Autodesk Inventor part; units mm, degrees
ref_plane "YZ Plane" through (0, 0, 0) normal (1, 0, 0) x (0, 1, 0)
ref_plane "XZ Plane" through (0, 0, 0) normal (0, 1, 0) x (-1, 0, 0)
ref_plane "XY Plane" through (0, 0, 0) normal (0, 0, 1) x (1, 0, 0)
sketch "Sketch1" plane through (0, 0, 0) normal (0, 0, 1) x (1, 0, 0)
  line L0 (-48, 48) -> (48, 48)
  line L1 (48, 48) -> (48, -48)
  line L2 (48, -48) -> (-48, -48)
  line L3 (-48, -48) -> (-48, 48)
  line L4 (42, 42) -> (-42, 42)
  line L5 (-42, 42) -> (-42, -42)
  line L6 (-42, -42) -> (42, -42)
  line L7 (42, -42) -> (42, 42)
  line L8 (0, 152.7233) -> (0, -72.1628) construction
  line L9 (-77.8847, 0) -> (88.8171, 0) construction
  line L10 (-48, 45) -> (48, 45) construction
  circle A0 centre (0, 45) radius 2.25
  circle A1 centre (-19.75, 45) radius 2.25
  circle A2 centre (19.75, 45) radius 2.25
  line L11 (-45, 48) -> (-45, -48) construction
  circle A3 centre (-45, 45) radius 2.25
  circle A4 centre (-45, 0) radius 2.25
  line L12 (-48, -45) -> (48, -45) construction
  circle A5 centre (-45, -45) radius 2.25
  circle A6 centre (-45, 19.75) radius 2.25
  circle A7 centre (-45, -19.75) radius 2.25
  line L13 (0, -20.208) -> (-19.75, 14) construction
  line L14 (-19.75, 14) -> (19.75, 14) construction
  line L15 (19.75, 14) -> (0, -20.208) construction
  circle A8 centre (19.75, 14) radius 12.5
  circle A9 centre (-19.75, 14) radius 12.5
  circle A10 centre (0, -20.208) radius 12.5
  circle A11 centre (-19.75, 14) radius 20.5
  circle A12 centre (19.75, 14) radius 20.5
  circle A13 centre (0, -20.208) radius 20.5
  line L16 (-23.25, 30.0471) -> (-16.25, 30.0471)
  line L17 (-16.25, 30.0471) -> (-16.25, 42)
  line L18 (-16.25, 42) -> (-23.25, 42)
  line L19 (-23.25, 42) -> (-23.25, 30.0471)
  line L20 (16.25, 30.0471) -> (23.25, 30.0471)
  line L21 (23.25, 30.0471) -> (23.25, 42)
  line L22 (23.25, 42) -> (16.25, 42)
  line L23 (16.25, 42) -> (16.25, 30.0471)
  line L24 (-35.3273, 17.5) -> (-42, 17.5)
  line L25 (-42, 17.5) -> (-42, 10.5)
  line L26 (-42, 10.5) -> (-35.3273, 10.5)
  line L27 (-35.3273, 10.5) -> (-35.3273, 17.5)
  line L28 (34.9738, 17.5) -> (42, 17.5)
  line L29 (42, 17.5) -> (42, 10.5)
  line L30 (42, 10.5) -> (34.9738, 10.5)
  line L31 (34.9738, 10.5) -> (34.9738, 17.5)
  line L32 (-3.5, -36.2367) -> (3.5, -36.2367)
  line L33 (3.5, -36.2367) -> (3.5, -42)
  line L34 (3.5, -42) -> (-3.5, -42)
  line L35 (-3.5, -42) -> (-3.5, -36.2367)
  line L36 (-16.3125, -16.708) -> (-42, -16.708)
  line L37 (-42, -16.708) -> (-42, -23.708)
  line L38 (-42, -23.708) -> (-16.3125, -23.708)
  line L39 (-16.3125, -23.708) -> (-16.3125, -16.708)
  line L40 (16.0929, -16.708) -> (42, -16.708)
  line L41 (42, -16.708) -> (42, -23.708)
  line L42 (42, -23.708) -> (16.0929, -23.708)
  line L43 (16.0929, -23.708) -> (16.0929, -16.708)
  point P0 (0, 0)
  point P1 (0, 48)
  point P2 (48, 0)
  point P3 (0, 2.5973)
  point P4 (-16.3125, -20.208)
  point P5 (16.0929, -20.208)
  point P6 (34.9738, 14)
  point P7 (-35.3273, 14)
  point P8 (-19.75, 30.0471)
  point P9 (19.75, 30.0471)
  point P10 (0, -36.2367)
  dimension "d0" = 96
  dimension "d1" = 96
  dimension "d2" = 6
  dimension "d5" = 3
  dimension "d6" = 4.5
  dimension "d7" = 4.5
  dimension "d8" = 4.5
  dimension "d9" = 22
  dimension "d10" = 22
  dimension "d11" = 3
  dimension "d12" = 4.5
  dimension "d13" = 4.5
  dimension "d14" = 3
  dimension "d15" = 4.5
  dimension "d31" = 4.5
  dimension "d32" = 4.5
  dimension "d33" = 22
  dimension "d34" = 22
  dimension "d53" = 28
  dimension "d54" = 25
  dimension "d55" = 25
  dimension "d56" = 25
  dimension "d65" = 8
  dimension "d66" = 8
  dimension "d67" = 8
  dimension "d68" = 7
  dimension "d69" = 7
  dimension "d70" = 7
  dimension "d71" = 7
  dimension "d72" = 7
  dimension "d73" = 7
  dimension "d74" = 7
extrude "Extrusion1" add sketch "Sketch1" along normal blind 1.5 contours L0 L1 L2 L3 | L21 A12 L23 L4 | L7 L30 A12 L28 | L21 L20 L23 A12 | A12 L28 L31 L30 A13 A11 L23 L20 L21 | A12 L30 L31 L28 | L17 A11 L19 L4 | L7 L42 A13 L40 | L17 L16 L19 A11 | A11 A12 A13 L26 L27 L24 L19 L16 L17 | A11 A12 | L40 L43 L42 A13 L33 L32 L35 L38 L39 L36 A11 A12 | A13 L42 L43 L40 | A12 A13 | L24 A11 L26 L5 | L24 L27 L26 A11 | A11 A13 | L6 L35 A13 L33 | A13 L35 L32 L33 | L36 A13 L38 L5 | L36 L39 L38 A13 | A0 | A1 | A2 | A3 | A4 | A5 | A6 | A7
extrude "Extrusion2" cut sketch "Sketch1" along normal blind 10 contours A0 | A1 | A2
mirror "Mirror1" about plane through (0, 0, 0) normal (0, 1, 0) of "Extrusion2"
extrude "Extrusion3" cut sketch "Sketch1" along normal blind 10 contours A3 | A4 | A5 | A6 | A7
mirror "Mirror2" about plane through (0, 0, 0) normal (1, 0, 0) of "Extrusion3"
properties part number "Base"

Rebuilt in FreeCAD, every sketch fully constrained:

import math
import FreeCAD as App
import Part
import Sketcher

V = App.Vector

doc = App.newDocument("Part")
params = doc.addObject("Spreadsheet::Sheet", "Params")
for row, (alias, value) in enumerate([
    ("sketch1_diameter", "25 mm"),
    ("sketch1_width", "96 mm"),
    ("sketch1_radius", "20.5 mm"),
    ("sketch1_width2", "32.5 mm"),
    ("pad1_length", "1.5 mm"),
    ("sketch2_diameter", "4.5 mm"),
    ("pocket1_length", "10 mm"),
    ("sketch3_diameter", "4.5 mm"),
    ("pocket2_length", "10 mm"),
], start=1):
    params.set(f"A{row}", alias)
    params.set(f"B{row}", "=" + value)
    params.setAlias(f"B{row}", alias)

body = doc.addObject("PartDesign::Body", "Body")

# Sketch on XY plane
sketch1 = body.newObject("Sketcher::SketchObject", "Sketch")
sketch1.AttachmentSupport = (doc.getObject("XY_Plane"), [""])
sketch1.MapMode = "FlatFace"
sketch1.addGeometry(Part.LineSegment(V(48, 48, 0), V(-48, 48, 0)), False)
sketch1.addGeometry(Part.LineSegment(V(-48, 48, 0), V(-48, -48, 0)), False)
sketch1.addGeometry(Part.LineSegment(V(-48, -48, 0), V(48, -48, 0)), False)
sketch1.addGeometry(Part.LineSegment(V(48, -48, 0), V(48, 48, 0)), False)
sketch1.addGeometry(Part.LineSegment(V(23.25, 42, 0), V(42, 42, 0)), False)
sketch1.addGeometry(Part.LineSegment(V(42, 42, 0), V(42, 17.5, 0)), False)
sketch1.addGeometry(Part.LineSegment(V(42, 17.5, 0), V(39.94901, 17.5, 0)), False)
sketch1.addGeometry(Part.ArcOfCircle(Part.Circle(V(19.75, 14, 0), V(0, 0, 1), 20.5), math.radians(9.830365), math.radians(80.169635)), False)
sketch1.addGeometry(Part.LineSegment(V(23.25, 34.19901, 0), V(23.25, 42, 0)), False)
sketch1.addGeometry(Part.LineSegment(V(-16.25, 42, 0), V(16.25, 42, 0)), False)
sketch1.addGeometry(Part.LineSegment(V(16.25, 42, 0), V(16.25, 34.19901, 0)), False)
sketch1.addGeometry(Part.ArcOfCircle(Part.Circle(V(19.75, 14, 0), V(0, 0, 1), 20.5), math.radians(99.830365), math.radians(164.453796)), False)
sketch1.addGeometry(Part.ArcOfCircle(Part.Circle(V(-19.75, 14, 0), V(0, 0, 1), 20.5), math.radians(15.546204), math.radians(80.169635)), False)
sketch1.addGeometry(Part.LineSegment(V(-16.25, 34.19901, 0), V(-16.25, 42, 0)), False)
sketch1.addGeometry(Part.LineSegment(V(-42, 42, 0), V(-23.25, 42, 0)), False)
sketch1.addGeometry(Part.LineSegment(V(-23.25, 42, 0), V(-23.25, 34.19901, 0)), False)
sketch1.addGeometry(Part.ArcOfCircle(Part.Circle(V(-19.75, 14, 0), V(0, 0, 1), 20.5), math.radians(99.830365), math.radians(170.169635)), False)
sketch1.addGeometry(Part.LineSegment(V(-39.94901, 17.5, 0), V(-42, 17.5, 0)), False)
sketch1.addGeometry(Part.LineSegment(V(-42, 17.5, 0), V(-42, 42, 0)), False)
sketch1.addGeometry(Part.LineSegment(V(-42, -16.708, 0), V(-42, 10.5, 0)), False)
sketch1.addGeometry(Part.LineSegment(V(-42, 10.5, 0), V(-39.94901, 10.5, 0)), False)
sketch1.addGeometry(Part.ArcOfCircle(Part.Circle(V(-19.75, 14, 0), V(0, 0, 1), 20.5), math.radians(-170.169635), math.radians(-75.546217)), False)
sketch1.addGeometry(Part.ArcOfCircle(Part.Circle(V(0, -20.208, 0), V(0, 0, 1), 20.5), math.radians(135.546222), math.radians(170.169635)), False)
sketch1.addGeometry(Part.LineSegment(V(-20.19901, -16.708, 0), V(-42, -16.708, 0)), False)
sketch1.addGeometry(Part.LineSegment(V(-42, -42, 0), V(-42, -23.708, 0)), False)
sketch1.addGeometry(Part.LineSegment(V(-42, -23.708, 0), V(-20.19901, -23.708, 0)), False)
sketch1.addGeometry(Part.ArcOfCircle(Part.Circle(V(0, -20.208, 0), V(0, 0, 1), 20.5), math.radians(-170.169635), math.radians(-99.830365)), False)
sketch1.addGeometry(Part.LineSegment(V(-3.5, -40.40701, 0), V(-3.5, -42, 0)), False)
sketch1.addGeometry(Part.LineSegment(V(-3.5, -42, 0), V(-42, -42, 0)), False)
sketch1.addGeometry(Part.LineSegment(V(42, -42, 0), V(3.5, -42, 0)), False)
sketch1.addGeometry(Part.LineSegment(V(3.5, -42, 0), V(3.5, -40.40701, 0)), False)
sketch1.addGeometry(Part.ArcOfCircle(Part.Circle(V(0, -20.208, 0), V(0, 0, 1), 20.5), math.radians(-80.169635), math.radians(-9.830365)), False)
sketch1.addGeometry(Part.LineSegment(V(20.19901, -23.708, 0), V(42, -23.708, 0)), False)
sketch1.addGeometry(Part.LineSegment(V(42, -23.708, 0), V(42, -42, 0)), False)
sketch1.addGeometry(Part.LineSegment(V(42, 10.5, 0), V(42, -16.708, 0)), False)
sketch1.addGeometry(Part.LineSegment(V(42, -16.708, 0), V(20.19901, -16.708, 0)), False)
sketch1.addGeometry(Part.ArcOfCircle(Part.Circle(V(0, -20.208, 0), V(0, 0, 1), 20.5), math.radians(9.830365), math.radians(44.453778)), False)
sketch1.addGeometry(Part.ArcOfCircle(Part.Circle(V(19.75, 14, 0), V(0, 0, 1), 20.5), math.radians(-104.453783), math.radians(-9.830365)), False)
sketch1.addGeometry(Part.LineSegment(V(39.94901, 10.5, 0), V(42, 10.5, 0)), False)
sketch1.addGeometry(Part.Circle(V(19.75, 14, 0), V(0, 0, 1), 12.5), False)
sketch1.addGeometry(Part.ArcOfCircle(Part.Circle(V(19.75, 14, 0), V(0, 0, 1), 20.5), math.radians(-164.453796), math.radians(-135.546222)), False)
sketch1.addGeometry(Part.ArcOfCircle(Part.Circle(V(0, -20.208, 0), V(0, 0, 1), 20.5), math.radians(75.546217), math.radians(104.453783)), False)
sketch1.addGeometry(Part.ArcOfCircle(Part.Circle(V(-19.75, 14, 0), V(0, 0, 1), 20.5), math.radians(-44.453778), math.radians(-15.546204)), False)
sketch1.addGeometry(Part.Circle(V(-19.75, 14, 0), V(0, 0, 1), 12.5), False)
sketch1.addGeometry(Part.Circle(V(0, -20.208, 0), V(0, 0, 1), 12.5), False)
sketch1.addConstraint(Sketcher.Constraint("Coincident", 0, 2, 1, 1))
sketch1.addConstraint(Sketcher.Constraint("Coincident", 1, 2, 2, 1))
sketch1.addConstraint(Sketcher.Constraint("Coincident", 2, 2, 3, 1))
sketch1.addConstraint(Sketcher.Constraint("Coincident", 3, 2, 0, 1))
sketch1.addConstraint(Sketcher.Constraint("Coincident", 4, 2, 5, 1))
sketch1.addConstraint(Sketcher.Constraint("Coincident", 5, 2, 6, 1))
sketch1.addConstraint(Sketcher.Constraint("Coincident", 6, 2, 7, 1))
sketch1.addConstraint(Sketcher.Constraint("Coincident", 7, 2, 8, 1))
sketch1.addConstraint(Sketcher.Constraint("Coincident", 8, 2, 4, 1))
sketch1.addConstraint(Sketcher.Constraint("Coincident", 9, 2, 10, 1))
sketch1.addConstraint(Sketcher.Constraint("Coincident", 10, 2, 11, 1))
sketch1.addConstraint(Sketcher.Constraint("Coincident", 11, 2, 12, 1))
sketch1.addConstraint(Sketcher.Constraint("Coincident", 12, 2, 13, 1))
sketch1.addConstraint(Sketcher.Constraint("Coincident", 13, 2, 9, 1))
sketch1.addConstraint(Sketcher.Constraint("Coincident", 14, 2, 15, 1))
sketch1.addConstraint(Sketcher.Constraint("Coincident", 15, 2, 16, 1))
sketch1.addConstraint(Sketcher.Constraint("Coincident", 16, 2, 17, 1))
sketch1.addConstraint(Sketcher.Constraint("Coincident", 17, 2, 18, 1))
sketch1.addConstraint(Sketcher.Constraint("Coincident", 18, 2, 14, 1))
sketch1.addConstraint(Sketcher.Constraint("Coincident", 19, 2, 20, 1))
sketch1.addConstraint(Sketcher.Constraint("Coincident", 20, 2, 21, 1))
sketch1.addConstraint(Sketcher.Constraint("Coincident", 21, 2, 22, 1))
sketch1.addConstraint(Sketcher.Constraint("Coincident", 22, 2, 23, 1))
sketch1.addConstraint(Sketcher.Constraint("Coincident", 23, 2, 19, 1))
sketch1.addConstraint(Sketcher.Constraint("Coincident", 24, 2, 25, 1))
sketch1.addConstraint(Sketcher.Constraint("Coincident", 25, 2, 26, 1))
sketch1.addConstraint(Sketcher.Constraint("Coincident", 26, 2, 27, 1))
sketch1.addConstraint(Sketcher.Constraint("Coincident", 27, 2, 28, 1))
sketch1.addConstraint(Sketcher.Constraint("Coincident", 28, 2, 24, 1))
sketch1.addConstraint(Sketcher.Constraint("Coincident", 29, 2, 30, 1))
sketch1.addConstraint(Sketcher.Constraint("Coincident", 30, 2, 31, 1))
sketch1.addConstraint(Sketcher.Constraint("Coincident", 31, 2, 32, 1))
sketch1.addConstraint(Sketcher.Constraint("Coincident", 32, 2, 33, 1))
sketch1.addConstraint(Sketcher.Constraint("Coincident", 33, 2, 29, 1))
sketch1.addConstraint(Sketcher.Constraint("Coincident", 34, 2, 35, 1))
sketch1.addConstraint(Sketcher.Constraint("Coincident", 35, 2, 36, 1))
sketch1.addConstraint(Sketcher.Constraint("Coincident", 36, 2, 37, 1))
sketch1.addConstraint(Sketcher.Constraint("Coincident", 37, 2, 38, 1))
sketch1.addConstraint(Sketcher.Constraint("Coincident", 38, 2, 34, 1))
sketch1.addConstraint(Sketcher.Constraint("Coincident", 40, 2, 41, 1))
sketch1.addConstraint(Sketcher.Constraint("Coincident", 41, 2, 42, 1))
sketch1.addConstraint(Sketcher.Constraint("Coincident", 42, 2, 40, 1))
sketch1.addConstraint(Sketcher.Constraint("Horizontal", 0))
sketch1.addConstraint(Sketcher.Constraint("Vertical", 1))
sketch1.addConstraint(Sketcher.Constraint("Horizontal", 2))
sketch1.addConstraint(Sketcher.Constraint("Vertical", 3))
sketch1.addConstraint(Sketcher.Constraint("Horizontal", 4))
sketch1.addConstraint(Sketcher.Constraint("Vertical", 5))
sketch1.addConstraint(Sketcher.Constraint("Horizontal", 6))
sketch1.addConstraint(Sketcher.Constraint("Vertical", 8))
sketch1.addConstraint(Sketcher.Constraint("Horizontal", 9))
sketch1.addConstraint(Sketcher.Constraint("Vertical", 10))
sketch1.addConstraint(Sketcher.Constraint("Vertical", 13))
sketch1.addConstraint(Sketcher.Constraint("Horizontal", 14))
sketch1.addConstraint(Sketcher.Constraint("Vertical", 15))
sketch1.addConstraint(Sketcher.Constraint("Horizontal", 17))
sketch1.addConstraint(Sketcher.Constraint("Vertical", 18))
sketch1.addConstraint(Sketcher.Constraint("Vertical", 19))
sketch1.addConstraint(Sketcher.Constraint("Horizontal", 20))
sketch1.addConstraint(Sketcher.Constraint("Horizontal", 23))
sketch1.addConstraint(Sketcher.Constraint("Vertical", 24))
sketch1.addConstraint(Sketcher.Constraint("Horizontal", 25))
sketch1.addConstraint(Sketcher.Constraint("Vertical", 27))
sketch1.addConstraint(Sketcher.Constraint("Horizontal", 28))
sketch1.addConstraint(Sketcher.Constraint("Horizontal", 29))
sketch1.addConstraint(Sketcher.Constraint("Vertical", 30))
sketch1.addConstraint(Sketcher.Constraint("Horizontal", 32))
sketch1.addConstraint(Sketcher.Constraint("Vertical", 33))
sketch1.addConstraint(Sketcher.Constraint("Vertical", 34))
sketch1.addConstraint(Sketcher.Constraint("Horizontal", 35))
sketch1.addConstraint(Sketcher.Constraint("Horizontal", 38))
sketch1.addConstraint(Sketcher.Constraint("Coincident", 11, 3, 7, 3))
sketch1.addConstraint(Sketcher.Constraint("Coincident", 16, 3, 12, 3))
sketch1.addConstraint(Sketcher.Constraint("Coincident", 21, 3, 12, 3))
sketch1.addConstraint(Sketcher.Constraint("Coincident", 26, 3, 22, 3))
sketch1.addConstraint(Sketcher.Constraint("Coincident", 31, 3, 22, 3))
sketch1.addConstraint(Sketcher.Constraint("Coincident", 36, 3, 22, 3))
sketch1.addConstraint(Sketcher.Constraint("Coincident", 37, 3, 7, 3))
sketch1.addConstraint(Sketcher.Constraint("Coincident", 39, 3, 7, 3))
sketch1.addConstraint(Sketcher.Constraint("Coincident", 40, 3, 7, 3))
sketch1.addConstraint(Sketcher.Constraint("Coincident", 41, 3, 22, 3))
sketch1.addConstraint(Sketcher.Constraint("Coincident", 42, 3, 12, 3))
sketch1.addConstraint(Sketcher.Constraint("Coincident", 43, 3, 12, 3))
sketch1.addConstraint(Sketcher.Constraint("Coincident", 44, 3, 22, 3))
sketch1.addConstraint(Sketcher.Constraint("Equal", 7, 11))
sketch1.addConstraint(Sketcher.Constraint("Equal", 11, 12))
sketch1.addConstraint(Sketcher.Constraint("Equal", 12, 16))
sketch1.addConstraint(Sketcher.Constraint("Equal", 16, 21))
sketch1.addConstraint(Sketcher.Constraint("Equal", 21, 22))
sketch1.addConstraint(Sketcher.Constraint("Equal", 22, 26))
sketch1.addConstraint(Sketcher.Constraint("Equal", 26, 31))
sketch1.addConstraint(Sketcher.Constraint("Equal", 31, 36))
sketch1.addConstraint(Sketcher.Constraint("Equal", 36, 37))
sketch1.addConstraint(Sketcher.Constraint("Equal", 37, 40))
sketch1.addConstraint(Sketcher.Constraint("Equal", 40, 41))
sketch1.addConstraint(Sketcher.Constraint("Equal", 41, 42))
sketch1.addConstraint(Sketcher.Constraint("Equal", 39, 43))
sketch1.addConstraint(Sketcher.Constraint("Equal", 43, 44))
sketch1.addConstraint(Sketcher.Constraint("Symmetric", 0, 2, 2, 2, -1, 1))
sketch1.addConstraint(Sketcher.Constraint("Symmetric", 4, 2, 28, 2, -1, 1))
sketch1.addConstraint(Sketcher.Constraint("Symmetric", 18, 2, 33, 2, -1, 1))
sketch1.addConstraint(Sketcher.Constraint("Symmetric", 7, 3, 12, 3, -2))
sketch1.addConstraint(Sketcher.Constraint("Symmetric", 8, 2, 14, 2, -2))
sketch1.addConstraint(Sketcher.Constraint("Symmetric", 5, 2, 17, 2, -2))
sketch1.addConstraint(Sketcher.Constraint("Symmetric", 26, 2, 30, 2, -2))
sketch1.addConstraint(Sketcher.Constraint("Symmetric", 23, 2, 34, 2, -2))
sketch1.addConstraint(Sketcher.Constraint("Horizontal", 8, 2, 9, 2))
sketch1.addConstraint(Sketcher.Constraint("Horizontal", 7, 2, 10, 2))
sketch1.addConstraint(Sketcher.Constraint("Horizontal", 10, 2, 12, 2))
sketch1.addConstraint(Sketcher.Constraint("Horizontal", 25, 2, 31, 2))
sketch1.addConstraint(Sketcher.Constraint("Horizontal", 20, 2, 37, 2))
sketch1.addConstraint(Sketcher.Constraint("Vertical", 18, 2, 19, 2))
sketch1.addConstraint(Sketcher.Constraint("Vertical", 16, 2, 20, 2))
sketch1.addConstraint(Sketcher.Constraint("Vertical", 22, 2, 25, 2))
sketch1.addConstraint(Sketcher.Constraint("Equal", 2, 1))
sketch1.addConstraint(Sketcher.Constraint("Diameter", 39, 25.0))
sketch1.addConstraint(Sketcher.Constraint("DistanceX", 0, 2, 0, 1, 96.0))
sketch1.addConstraint(Sketcher.Constraint("DistanceX", 4, 2, 3, 2, 6.0))
sketch1.addConstraint(Sketcher.Constraint("DistanceY", 4, 2, 3, 2, 6.0))
sketch1.addConstraint(Sketcher.Constraint("DistanceY", 7, 3, 4, 2, 28.0))
sketch1.addConstraint(Sketcher.Constraint("DistanceX", 9, 2, 8, 2, 7.0))
sketch1.addConstraint(Sketcher.Constraint("DistanceY", 19, 2, 17, 2, 7.0))
sketch1.addConstraint(Sketcher.Constraint("DistanceY", 24, 2, 23, 2, 7.0))
sketch1.addConstraint(Sketcher.Constraint("DistanceX", 27, 2, 29, 2, 7.0))
sketch1.addConstraint(Sketcher.Constraint("Radius", 7, 20.5))
sketch1.addConstraint(Sketcher.Constraint("DistanceX", 9, 1, 9, 2, 32.5))
sketch1.addConstraint(Sketcher.Constraint("DistanceY", 19, 1, 19, 2, 27.208))
sketch1.setExpression("Constraints[115]", "Params.sketch1_diameter")
sketch1.setExpression("Constraints[116]", "Params.sketch1_width")
sketch1.setExpression("Constraints[124]", "Params.sketch1_radius")
sketch1.setExpression("Constraints[125]", "Params.sketch1_width2")
pad1 = body.newObject("PartDesign::Pad", "Pad")
pad1.Profile = sketch1
pad1.setExpression("Length", "Params.pad1_length")

# Sketch on XY plane
sketch2 = body.newObject("Sketcher::SketchObject", "Sketch001")
sketch2.AttachmentSupport = (doc.getObject("XY_Plane"), [""])
sketch2.MapMode = "FlatFace"
sketch2.addGeometry(Part.Circle(V(0, 45, 0), V(0, 0, 1), 2.25), False)
sketch2.addGeometry(Part.Circle(V(-19.75, 45, 0), V(0, 0, 1), 2.25), False)
sketch2.addGeometry(Part.Circle(V(19.75, 45, 0), V(0, 0, 1), 2.25), False)
sketch2.addConstraint(Sketcher.Constraint("Equal", 0, 1))
sketch2.addConstraint(Sketcher.Constraint("Equal", 1, 2))
sketch2.addConstraint(Sketcher.Constraint("Symmetric", 1, 3, 2, 3, -2))
sketch2.addConstraint(Sketcher.Constraint("PointOnObject", 0, 3, -2))
sketch2.addConstraint(Sketcher.Constraint("Horizontal", 0, 3, 1, 3))
sketch2.addConstraint(Sketcher.Constraint("Diameter", 0, 4.5))
sketch2.addConstraint(Sketcher.Constraint("DistanceY", -1, 1, 0, 3, 45.0))
sketch2.addConstraint(Sketcher.Constraint("DistanceX", 1, 3, 2, 3, 39.5))
sketch2.setExpression("Constraints[5]", "Params.sketch2_diameter")
pocket1 = body.newObject("PartDesign::Pocket", "Pocket")
pocket1.Profile = sketch2
pocket1.setExpression("Length", "Params.pocket1_length")
pocket1.Reversed = True
doc.recompute()

mirrored = body.newObject("PartDesign::Mirrored", "Mirrored")
mirrored.Originals = [pocket1]
mirrored.MirrorPlane = (doc.getObject("XZ_Plane"), [""])
body.Tip = mirrored

# Sketch on XY plane
sketch3 = body.newObject("Sketcher::SketchObject", "Sketch002")
sketch3.AttachmentSupport = (doc.getObject("XY_Plane"), [""])
sketch3.MapMode = "FlatFace"
sketch3.addGeometry(Part.Circle(V(-45, 45, 0), V(0, 0, 1), 2.25), False)
sketch3.addGeometry(Part.Circle(V(-45, 0, 0), V(0, 0, 1), 2.25), False)
sketch3.addGeometry(Part.Circle(V(-45, -45, 0), V(0, 0, 1), 2.25), False)
sketch3.addGeometry(Part.Circle(V(-45, 19.75, 0), V(0, 0, 1), 2.25), False)
sketch3.addGeometry(Part.Circle(V(-45, -19.75, 0), V(0, 0, 1), 2.25), False)
sketch3.addConstraint(Sketcher.Constraint("Equal", 0, 1))
sketch3.addConstraint(Sketcher.Constraint("Equal", 1, 2))
sketch3.addConstraint(Sketcher.Constraint("Equal", 2, 3))
sketch3.addConstraint(Sketcher.Constraint("Equal", 3, 4))
sketch3.addConstraint(Sketcher.Constraint("Symmetric", 0, 3, 2, 3, -1))
sketch3.addConstraint(Sketcher.Constraint("Symmetric", 3, 3, 4, 3, -1))
sketch3.addConstraint(Sketcher.Constraint("PointOnObject", 1, 3, -1))
sketch3.addConstraint(Sketcher.Constraint("Vertical", 0, 3, 1, 3))
sketch3.addConstraint(Sketcher.Constraint("Vertical", 2, 3, 3, 3))
sketch3.addConstraint(Sketcher.Constraint("Diameter", 0, 4.5))
sketch3.addConstraint(Sketcher.Constraint("DistanceX", 0, 3, -1, 1, 45.0))
sketch3.addConstraint(Sketcher.Constraint("DistanceY", -1, 1, 0, 3, 45.0))
sketch3.addConstraint(Sketcher.Constraint("DistanceY", 4, 3, 3, 3, 39.5))
sketch3.setExpression("Constraints[9]", "Params.sketch3_diameter")
pocket2 = body.newObject("PartDesign::Pocket", "Pocket001")
pocket2.Profile = sketch3
pocket2.setExpression("Length", "Params.pocket2_length")
pocket2.Reversed = True
doc.recompute()

mirrored2 = body.newObject("PartDesign::Mirrored", "Mirrored001")
mirrored2.Originals = [pocket2]
mirrored2.MirrorPlane = (doc.getObject("YZ_Plane"), [""])
body.Tip = mirrored2

doc.recompute()
